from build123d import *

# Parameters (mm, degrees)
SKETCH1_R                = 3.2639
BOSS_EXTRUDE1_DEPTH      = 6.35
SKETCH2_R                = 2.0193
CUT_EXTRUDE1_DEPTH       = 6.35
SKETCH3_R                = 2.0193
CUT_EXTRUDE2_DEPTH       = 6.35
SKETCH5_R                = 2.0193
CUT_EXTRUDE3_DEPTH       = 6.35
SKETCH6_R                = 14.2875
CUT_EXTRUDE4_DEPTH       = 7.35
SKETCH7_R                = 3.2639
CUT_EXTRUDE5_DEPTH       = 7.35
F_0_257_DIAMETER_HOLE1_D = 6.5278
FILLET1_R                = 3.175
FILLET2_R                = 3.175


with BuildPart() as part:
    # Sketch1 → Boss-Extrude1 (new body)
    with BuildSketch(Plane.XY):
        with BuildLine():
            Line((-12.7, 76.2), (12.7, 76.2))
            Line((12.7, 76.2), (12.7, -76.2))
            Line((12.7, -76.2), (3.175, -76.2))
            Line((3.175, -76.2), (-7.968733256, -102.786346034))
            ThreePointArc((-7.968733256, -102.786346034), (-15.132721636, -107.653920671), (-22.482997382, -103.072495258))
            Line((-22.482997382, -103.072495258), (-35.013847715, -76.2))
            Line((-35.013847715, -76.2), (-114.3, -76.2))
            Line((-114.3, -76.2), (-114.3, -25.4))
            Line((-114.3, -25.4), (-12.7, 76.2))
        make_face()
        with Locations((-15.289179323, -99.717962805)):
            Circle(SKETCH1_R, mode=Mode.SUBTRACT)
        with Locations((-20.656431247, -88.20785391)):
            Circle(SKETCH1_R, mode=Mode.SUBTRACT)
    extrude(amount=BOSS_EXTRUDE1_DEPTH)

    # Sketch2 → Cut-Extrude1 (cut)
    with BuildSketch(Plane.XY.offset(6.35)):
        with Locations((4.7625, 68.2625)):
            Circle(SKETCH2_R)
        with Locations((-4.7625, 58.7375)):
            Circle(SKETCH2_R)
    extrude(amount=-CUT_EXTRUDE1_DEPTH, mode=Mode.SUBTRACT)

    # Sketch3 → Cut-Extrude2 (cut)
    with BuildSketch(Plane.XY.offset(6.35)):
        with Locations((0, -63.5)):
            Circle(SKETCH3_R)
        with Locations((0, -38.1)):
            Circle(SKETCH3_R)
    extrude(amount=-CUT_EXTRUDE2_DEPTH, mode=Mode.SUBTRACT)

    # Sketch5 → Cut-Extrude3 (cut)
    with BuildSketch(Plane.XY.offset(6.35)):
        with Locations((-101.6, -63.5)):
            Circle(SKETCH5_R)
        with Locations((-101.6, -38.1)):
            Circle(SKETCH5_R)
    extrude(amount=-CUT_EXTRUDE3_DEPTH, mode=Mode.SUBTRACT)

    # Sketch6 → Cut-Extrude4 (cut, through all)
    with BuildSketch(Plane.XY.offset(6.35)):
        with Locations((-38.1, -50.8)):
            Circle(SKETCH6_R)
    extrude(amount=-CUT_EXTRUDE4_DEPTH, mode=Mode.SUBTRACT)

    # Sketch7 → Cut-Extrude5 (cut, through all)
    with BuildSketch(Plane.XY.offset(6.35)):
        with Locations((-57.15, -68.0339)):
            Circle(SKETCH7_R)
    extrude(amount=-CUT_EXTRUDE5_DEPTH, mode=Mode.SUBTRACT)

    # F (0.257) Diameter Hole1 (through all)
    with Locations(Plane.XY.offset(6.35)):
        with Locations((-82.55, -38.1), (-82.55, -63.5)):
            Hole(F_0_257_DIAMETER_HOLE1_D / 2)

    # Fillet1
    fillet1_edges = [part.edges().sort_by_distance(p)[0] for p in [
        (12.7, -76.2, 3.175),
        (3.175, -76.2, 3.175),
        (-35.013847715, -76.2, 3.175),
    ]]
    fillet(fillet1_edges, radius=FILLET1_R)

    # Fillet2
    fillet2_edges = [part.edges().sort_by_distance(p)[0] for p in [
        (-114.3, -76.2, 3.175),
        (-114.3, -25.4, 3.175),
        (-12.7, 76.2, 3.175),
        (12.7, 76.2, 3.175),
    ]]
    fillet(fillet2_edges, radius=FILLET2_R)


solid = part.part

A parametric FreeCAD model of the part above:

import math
import FreeCAD as App
import Part
import Sketcher

V = App.Vector
Q = App.Units.Quantity


def edges_at(feature, points):
    """Names of the edges that pass closest to the given points."""
    edges = feature.Shape.Edges
    near = lambda p: min(range(len(edges)), key=lambda i: edges[i].distToShape(Part.Vertex(*p))[0])
    return sorted({f"Edge{near(p) + 1}" for p in points})

doc = App.newDocument("Part")
body = doc.addObject("PartDesign::Body", "Body")

# Sketch on XY plane
sketch1 = body.newObject("Sketcher::SketchObject", "Sketch")
sketch1.AttachmentSupport = (doc.getObject("XY_Plane"), [""])
sketch1.MapMode = "FlatFace"
sketch1.addGeometry([
    Part.LineSegment(V(12.7, 76.2, 0), V(-12.7, 76.2, 0)),  # 0
    Part.LineSegment(V(-12.7, 76.2, 0), V(-114.3, -25.4, 0)),  # 1
    Part.LineSegment(V(-114.3, -25.4, 0), V(-114.3, -76.2, 0)),  # 2
    Part.LineSegment(V(-114.3, -76.2, 0), V(-35.013848, -76.2, 0)),  # 3
    Part.LineSegment(V(-35.013848, -76.2, 0), V(-22.482997, -103.072495, 0)),  # 4
    Part.ArcOfCircle(Part.Circle(V(-15.289179, -99.717963, 0), V(0, 0, 1), 7.9375), math.radians(-155), math.radians(-22.741116)),  # 5
    Part.LineSegment(V(-7.968733, -102.786346, 0), V(3.175, -76.2, 0)),  # 6
    Part.LineSegment(V(3.175, -76.2, 0), V(12.7, -76.2, 0)),  # 7
    Part.LineSegment(V(12.7, -76.2, 0), V(12.7, 76.2, 0)),  # 8
    Part.Circle(V(-15.289179, -99.717963, 0), V(0, 0, 1), 3.2639),  # 9
    Part.Circle(V(-20.656431, -88.207854, 0), V(0, 0, 1), 3.2639),  # 10
], False)
sketch1.addConstraint([
    Sketcher.Constraint("Coincident", 0, 2, 1, 1),
    Sketcher.Constraint("Coincident", 1, 2, 2, 1),
    Sketcher.Constraint("Coincident", 2, 2, 3, 1),
    Sketcher.Constraint("Coincident", 3, 2, 4, 1),
    Sketcher.Constraint("Tangent", 4, 2, 5, 1),
    Sketcher.Constraint("Tangent", 5, 2, 6, 1),
    Sketcher.Constraint("Coincident", 6, 2, 7, 1),
    Sketcher.Constraint("Coincident", 7, 2, 8, 1),
    Sketcher.Constraint("Coincident", 8, 2, 0, 1),
    Sketcher.Constraint("Horizontal", 0),
    Sketcher.Constraint("Vertical", 2),
    Sketcher.Constraint("Horizontal", 3),
    Sketcher.Constraint("Horizontal", 7),
    Sketcher.Constraint("Vertical", 8),
    Sketcher.Constraint("Coincident", 9, 3, 5, 3),
    Sketcher.Constraint("Equal", 9, 10),
    Sketcher.Constraint("Symmetric", 0, 2, 7, 2, -1, 1),
    Sketcher.Constraint("Horizontal", 3, 2, 6, 2),
    Sketcher.Constraint("DistanceX", 0, 2, 0, 1, Q("1 in")),
    Sketcher.Constraint("DistanceY", 2, 2, 2, 1, Q("2 in")),
    Sketcher.Constraint("DistanceY", 8, 1, 8, 2, Q("6 in")),
    Sketcher.Constraint("Diameter", 9, Q("0.257 in")),
    Sketcher.Constraint("Angle", 1, Q("-135 deg")),
    Sketcher.Constraint("Angle", 4, Q("-65 deg")),
    Sketcher.Constraint("Radius", 5, Q("0.3125 in")),
    Sketcher.Constraint("DistanceX", 7, 1, 7, 2, Q("0.375 in")),
    Sketcher.Constraint("Distance", 6, Q("28.827358 mm")),
    Sketcher.Constraint("DistanceX", 3, 1, 3, 2, Q("79.286152 mm")),
    Sketcher.Constraint("DistanceX", 10, 3, -1, 1, Q("20.656431 mm")),
    Sketcher.Constraint("DistanceY", 9, 3, 10, 3, Q("11.510109 mm")),
])
pad1 = body.newObject("PartDesign::Pad", "Pad")
pad1.Profile = sketch1
pad1.Length = Q("0.25 in")

# Sketch on XY plane
sketch2 = body.newObject("Sketcher::SketchObject", "Sketch001")
sketch2.AttachmentSupport = (doc.getObject("XY_Plane"), [""])
sketch2.MapMode = "FlatFace"
sketch2.AttachmentOffset = App.Placement(V(0, 0, 0.25 * 25.4), App.Rotation())
sketch2.addGeometry([
    Part.Circle(V(4.7625, 68.2625, 0), V(0, 0, 1), 2.0193),
    Part.Circle(V(-4.7625, 58.7375, 0), V(0, 0, 1), 2.0193),
], False)
sketch2.addConstraint([
    Sketcher.Constraint("Equal", 0, 1),
    Sketcher.Constraint("Diameter", 0, Q("0.159 in")),
    Sketcher.Constraint("DistanceX", -1, 1, 0, 3, Q("0.1875 in")),
    Sketcher.Constraint("DistanceY", -1, 1, 0, 3, Q("2.6875 in")),
    Sketcher.Constraint("DistanceX", 1, 3, -1, 1, Q("0.1875 in")),
    Sketcher.Constraint("DistanceY", -1, 1, 1, 3, Q("2.3125 in")),
])
pocket1 = body.newObject("PartDesign::Pocket", "Pocket")
pocket1.Profile = sketch2
pocket1.Length = Q("0.25 in")

# Sketch on XY plane
sketch3 = body.newObject("Sketcher::SketchObject", "Sketch002")
sketch3.AttachmentSupport = (doc.getObject("XY_Plane"), [""])
sketch3.MapMode = "FlatFace"
sketch3.AttachmentOffset = App.Placement(V(0, 0, 0.25 * 25.4), App.Rotation())
sketch3.addGeometry([
    Part.Circle(V(0, -63.5, 0), V(0, 0, 1), 2.0193),
    Part.Circle(V(0, -38.1, 0), V(0, 0, 1), 2.0193),
], False)
sketch3.addConstraint([
    Sketcher.Constraint("Equal", 0, 1),
    Sketcher.Constraint("PointOnObject", 0, 3, -2),
    Sketcher.Constraint("PointOnObject", 1, 3, -2),
    Sketcher.Constraint("Diameter", 0, Q("0.159 in")),
    Sketcher.Constraint("DistanceY", 0, 3, 1, 3, Q("1 in")),
    Sketcher.Constraint("DistanceY", 0, 3, -1, 1, Q("2.5 in")),
])
pocket2 = body.newObject("PartDesign::Pocket", "Pocket001")
pocket2.Profile = sketch3
pocket2.Length = Q("0.25 in")

# Sketch on XY plane
sketch4 = body.newObject("Sketcher::SketchObject", "Sketch003")
sketch4.AttachmentSupport = (doc.getObject("XY_Plane"), [""])
sketch4.MapMode = "FlatFace"
sketch4.AttachmentOffset = App.Placement(V(0, 0, 0.25 * 25.4), App.Rotation())
sketch4.addGeometry([
    Part.Circle(V(-101.6, -63.5, 0), V(0, 0, 1), 2.0193),
    Part.Circle(V(-101.6, -38.1, 0), V(0, 0, 1), 2.0193),
], False)
sketch4.addConstraint([
    Sketcher.Constraint("Equal", 0, 1),
    Sketcher.Constraint("Vertical", 0, 3, 1, 3),
    Sketcher.Constraint("Diameter", 0, Q("0.159 in")),
    Sketcher.Constraint("DistanceX", 0, 3, -1, 1, Q("4 in")),
    Sketcher.Constraint("DistanceY", 0, 3, 1, 3, Q("1 in")),
    Sketcher.Constraint("DistanceY", 0, 3, -1, 1, Q("2.5 in")),
])
pocket3 = body.newObject("PartDesign::Pocket", "Pocket002")
pocket3.Profile = sketch4
pocket3.Length = Q("0.25 in")

# Sketch on XY plane
sketch5 = body.newObject("Sketcher::SketchObject", "Sketch004")
sketch5.AttachmentSupport = (doc.getObject("XY_Plane"), [""])
sketch5.MapMode = "FlatFace"
sketch5.AttachmentOffset = App.Placement(V(0, 0, 0.25 * 25.4), App.Rotation())
sketch5.addGeometry(Part.Circle(V(-38.1, -50.8, 0), V(0, 0, 1), 14.2875), False)
sketch5.addConstraint([
    Sketcher.Constraint("Diameter", 0, Q("1.125 in")),
    Sketcher.Constraint("DistanceY", 0, 3, -1, 1, Q("2 in")),
    Sketcher.Constraint("DistanceX", 0, 3, -1, 1, Q("1.5 in")),
])
pocket4 = body.newObject("PartDesign::Pocket", "Pocket003")
pocket4.Profile = sketch5
pocket4.Type = "ThroughAll"

# Sketch on XY plane
sketch6 = body.newObject("Sketcher::SketchObject", "Sketch005")
sketch6.AttachmentSupport = (doc.getObject("XY_Plane"), [""])
sketch6.MapMode = "FlatFace"
sketch6.AttachmentOffset = App.Placement(V(0, 0, 0.25 * 25.4), App.Rotation())
sketch6.addGeometry(Part.Circle(V(-57.15, -68.0339, 0), V(0, 0, 1), 3.2639), False)
sketch6.addConstraint([
    Sketcher.Constraint("Diameter", 0, Q("0.257 in")),
    Sketcher.Constraint("DistanceX", 0, 3, -1, 1, Q("2.25 in")),
    Sketcher.Constraint("DistanceY", 0, 3, -1, 1, Q("2.6785 in")),
])
pocket5 = body.newObject("PartDesign::Pocket", "Pocket004")
pocket5.Profile = sketch6
pocket5.Type = "ThroughAll"

# Sketch on XY plane
sketch7 = body.newObject("Sketcher::SketchObject", "Sketch006")
sketch7.AttachmentSupport = (doc.getObject("XY_Plane"), [""])
sketch7.MapMode = "FlatFace"
sketch7.AttachmentOffset = App.Placement(V(0, 0, 0.25 * 25.4), App.Rotation())
sketch7.addGeometry([
    Part.Circle(V(-82.55, -38.1, 0), V(0, 0, 1), 3.2639),
    Part.Circle(V(-82.55, -63.5, 0), V(0, 0, 1), 3.2639),
], False)
sketch7.addConstraint([
    Sketcher.Constraint("Equal", 0, 1),
    Sketcher.Constraint("Vertical", 0, 3, 1, 3),
    Sketcher.Constraint("Diameter", 0, Q("0.257 in")),
    Sketcher.Constraint("DistanceY", 1, 3, 0, 3, Q("1 in")),
    Sketcher.Constraint("DistanceY", 0, 3, -1, 1, Q("1.5 in")),
    Sketcher.Constraint("DistanceX", 0, 3, -1, 1, Q("3.25 in")),
])
doc.recompute()
hole = body.newObject("PartDesign::Hole", "Hole")
hole.Profile = sketch7
hole.ThreadType = "None"
hole.Diameter = Q("0.257 in")
hole.DepthType = "ThroughAll"
doc.recompute()

fillet = body.newObject("PartDesign::Fillet", "Fillet")
fillet.Base = (hole, edges_at(hole, [(12.7, -76.2, 3.175), (3.175, -76.2, 3.175), (-35.014, -76.2, 3.175)]))
fillet.Radius = Q("0.125 in")
doc.recompute()

fillet2 = body.newObject("PartDesign::Fillet", "Fillet001")
fillet2.Base = (fillet, edges_at(fillet, [
    (-114.3, -76.2, 3.175),
    (-114.3, -25.4, 3.175),
    (-12.7, 76.2, 3.175),
    (12.7, 76.2, 3.175),
]))
fillet2.Radius = Q("0.125 in")

doc.recompute()
